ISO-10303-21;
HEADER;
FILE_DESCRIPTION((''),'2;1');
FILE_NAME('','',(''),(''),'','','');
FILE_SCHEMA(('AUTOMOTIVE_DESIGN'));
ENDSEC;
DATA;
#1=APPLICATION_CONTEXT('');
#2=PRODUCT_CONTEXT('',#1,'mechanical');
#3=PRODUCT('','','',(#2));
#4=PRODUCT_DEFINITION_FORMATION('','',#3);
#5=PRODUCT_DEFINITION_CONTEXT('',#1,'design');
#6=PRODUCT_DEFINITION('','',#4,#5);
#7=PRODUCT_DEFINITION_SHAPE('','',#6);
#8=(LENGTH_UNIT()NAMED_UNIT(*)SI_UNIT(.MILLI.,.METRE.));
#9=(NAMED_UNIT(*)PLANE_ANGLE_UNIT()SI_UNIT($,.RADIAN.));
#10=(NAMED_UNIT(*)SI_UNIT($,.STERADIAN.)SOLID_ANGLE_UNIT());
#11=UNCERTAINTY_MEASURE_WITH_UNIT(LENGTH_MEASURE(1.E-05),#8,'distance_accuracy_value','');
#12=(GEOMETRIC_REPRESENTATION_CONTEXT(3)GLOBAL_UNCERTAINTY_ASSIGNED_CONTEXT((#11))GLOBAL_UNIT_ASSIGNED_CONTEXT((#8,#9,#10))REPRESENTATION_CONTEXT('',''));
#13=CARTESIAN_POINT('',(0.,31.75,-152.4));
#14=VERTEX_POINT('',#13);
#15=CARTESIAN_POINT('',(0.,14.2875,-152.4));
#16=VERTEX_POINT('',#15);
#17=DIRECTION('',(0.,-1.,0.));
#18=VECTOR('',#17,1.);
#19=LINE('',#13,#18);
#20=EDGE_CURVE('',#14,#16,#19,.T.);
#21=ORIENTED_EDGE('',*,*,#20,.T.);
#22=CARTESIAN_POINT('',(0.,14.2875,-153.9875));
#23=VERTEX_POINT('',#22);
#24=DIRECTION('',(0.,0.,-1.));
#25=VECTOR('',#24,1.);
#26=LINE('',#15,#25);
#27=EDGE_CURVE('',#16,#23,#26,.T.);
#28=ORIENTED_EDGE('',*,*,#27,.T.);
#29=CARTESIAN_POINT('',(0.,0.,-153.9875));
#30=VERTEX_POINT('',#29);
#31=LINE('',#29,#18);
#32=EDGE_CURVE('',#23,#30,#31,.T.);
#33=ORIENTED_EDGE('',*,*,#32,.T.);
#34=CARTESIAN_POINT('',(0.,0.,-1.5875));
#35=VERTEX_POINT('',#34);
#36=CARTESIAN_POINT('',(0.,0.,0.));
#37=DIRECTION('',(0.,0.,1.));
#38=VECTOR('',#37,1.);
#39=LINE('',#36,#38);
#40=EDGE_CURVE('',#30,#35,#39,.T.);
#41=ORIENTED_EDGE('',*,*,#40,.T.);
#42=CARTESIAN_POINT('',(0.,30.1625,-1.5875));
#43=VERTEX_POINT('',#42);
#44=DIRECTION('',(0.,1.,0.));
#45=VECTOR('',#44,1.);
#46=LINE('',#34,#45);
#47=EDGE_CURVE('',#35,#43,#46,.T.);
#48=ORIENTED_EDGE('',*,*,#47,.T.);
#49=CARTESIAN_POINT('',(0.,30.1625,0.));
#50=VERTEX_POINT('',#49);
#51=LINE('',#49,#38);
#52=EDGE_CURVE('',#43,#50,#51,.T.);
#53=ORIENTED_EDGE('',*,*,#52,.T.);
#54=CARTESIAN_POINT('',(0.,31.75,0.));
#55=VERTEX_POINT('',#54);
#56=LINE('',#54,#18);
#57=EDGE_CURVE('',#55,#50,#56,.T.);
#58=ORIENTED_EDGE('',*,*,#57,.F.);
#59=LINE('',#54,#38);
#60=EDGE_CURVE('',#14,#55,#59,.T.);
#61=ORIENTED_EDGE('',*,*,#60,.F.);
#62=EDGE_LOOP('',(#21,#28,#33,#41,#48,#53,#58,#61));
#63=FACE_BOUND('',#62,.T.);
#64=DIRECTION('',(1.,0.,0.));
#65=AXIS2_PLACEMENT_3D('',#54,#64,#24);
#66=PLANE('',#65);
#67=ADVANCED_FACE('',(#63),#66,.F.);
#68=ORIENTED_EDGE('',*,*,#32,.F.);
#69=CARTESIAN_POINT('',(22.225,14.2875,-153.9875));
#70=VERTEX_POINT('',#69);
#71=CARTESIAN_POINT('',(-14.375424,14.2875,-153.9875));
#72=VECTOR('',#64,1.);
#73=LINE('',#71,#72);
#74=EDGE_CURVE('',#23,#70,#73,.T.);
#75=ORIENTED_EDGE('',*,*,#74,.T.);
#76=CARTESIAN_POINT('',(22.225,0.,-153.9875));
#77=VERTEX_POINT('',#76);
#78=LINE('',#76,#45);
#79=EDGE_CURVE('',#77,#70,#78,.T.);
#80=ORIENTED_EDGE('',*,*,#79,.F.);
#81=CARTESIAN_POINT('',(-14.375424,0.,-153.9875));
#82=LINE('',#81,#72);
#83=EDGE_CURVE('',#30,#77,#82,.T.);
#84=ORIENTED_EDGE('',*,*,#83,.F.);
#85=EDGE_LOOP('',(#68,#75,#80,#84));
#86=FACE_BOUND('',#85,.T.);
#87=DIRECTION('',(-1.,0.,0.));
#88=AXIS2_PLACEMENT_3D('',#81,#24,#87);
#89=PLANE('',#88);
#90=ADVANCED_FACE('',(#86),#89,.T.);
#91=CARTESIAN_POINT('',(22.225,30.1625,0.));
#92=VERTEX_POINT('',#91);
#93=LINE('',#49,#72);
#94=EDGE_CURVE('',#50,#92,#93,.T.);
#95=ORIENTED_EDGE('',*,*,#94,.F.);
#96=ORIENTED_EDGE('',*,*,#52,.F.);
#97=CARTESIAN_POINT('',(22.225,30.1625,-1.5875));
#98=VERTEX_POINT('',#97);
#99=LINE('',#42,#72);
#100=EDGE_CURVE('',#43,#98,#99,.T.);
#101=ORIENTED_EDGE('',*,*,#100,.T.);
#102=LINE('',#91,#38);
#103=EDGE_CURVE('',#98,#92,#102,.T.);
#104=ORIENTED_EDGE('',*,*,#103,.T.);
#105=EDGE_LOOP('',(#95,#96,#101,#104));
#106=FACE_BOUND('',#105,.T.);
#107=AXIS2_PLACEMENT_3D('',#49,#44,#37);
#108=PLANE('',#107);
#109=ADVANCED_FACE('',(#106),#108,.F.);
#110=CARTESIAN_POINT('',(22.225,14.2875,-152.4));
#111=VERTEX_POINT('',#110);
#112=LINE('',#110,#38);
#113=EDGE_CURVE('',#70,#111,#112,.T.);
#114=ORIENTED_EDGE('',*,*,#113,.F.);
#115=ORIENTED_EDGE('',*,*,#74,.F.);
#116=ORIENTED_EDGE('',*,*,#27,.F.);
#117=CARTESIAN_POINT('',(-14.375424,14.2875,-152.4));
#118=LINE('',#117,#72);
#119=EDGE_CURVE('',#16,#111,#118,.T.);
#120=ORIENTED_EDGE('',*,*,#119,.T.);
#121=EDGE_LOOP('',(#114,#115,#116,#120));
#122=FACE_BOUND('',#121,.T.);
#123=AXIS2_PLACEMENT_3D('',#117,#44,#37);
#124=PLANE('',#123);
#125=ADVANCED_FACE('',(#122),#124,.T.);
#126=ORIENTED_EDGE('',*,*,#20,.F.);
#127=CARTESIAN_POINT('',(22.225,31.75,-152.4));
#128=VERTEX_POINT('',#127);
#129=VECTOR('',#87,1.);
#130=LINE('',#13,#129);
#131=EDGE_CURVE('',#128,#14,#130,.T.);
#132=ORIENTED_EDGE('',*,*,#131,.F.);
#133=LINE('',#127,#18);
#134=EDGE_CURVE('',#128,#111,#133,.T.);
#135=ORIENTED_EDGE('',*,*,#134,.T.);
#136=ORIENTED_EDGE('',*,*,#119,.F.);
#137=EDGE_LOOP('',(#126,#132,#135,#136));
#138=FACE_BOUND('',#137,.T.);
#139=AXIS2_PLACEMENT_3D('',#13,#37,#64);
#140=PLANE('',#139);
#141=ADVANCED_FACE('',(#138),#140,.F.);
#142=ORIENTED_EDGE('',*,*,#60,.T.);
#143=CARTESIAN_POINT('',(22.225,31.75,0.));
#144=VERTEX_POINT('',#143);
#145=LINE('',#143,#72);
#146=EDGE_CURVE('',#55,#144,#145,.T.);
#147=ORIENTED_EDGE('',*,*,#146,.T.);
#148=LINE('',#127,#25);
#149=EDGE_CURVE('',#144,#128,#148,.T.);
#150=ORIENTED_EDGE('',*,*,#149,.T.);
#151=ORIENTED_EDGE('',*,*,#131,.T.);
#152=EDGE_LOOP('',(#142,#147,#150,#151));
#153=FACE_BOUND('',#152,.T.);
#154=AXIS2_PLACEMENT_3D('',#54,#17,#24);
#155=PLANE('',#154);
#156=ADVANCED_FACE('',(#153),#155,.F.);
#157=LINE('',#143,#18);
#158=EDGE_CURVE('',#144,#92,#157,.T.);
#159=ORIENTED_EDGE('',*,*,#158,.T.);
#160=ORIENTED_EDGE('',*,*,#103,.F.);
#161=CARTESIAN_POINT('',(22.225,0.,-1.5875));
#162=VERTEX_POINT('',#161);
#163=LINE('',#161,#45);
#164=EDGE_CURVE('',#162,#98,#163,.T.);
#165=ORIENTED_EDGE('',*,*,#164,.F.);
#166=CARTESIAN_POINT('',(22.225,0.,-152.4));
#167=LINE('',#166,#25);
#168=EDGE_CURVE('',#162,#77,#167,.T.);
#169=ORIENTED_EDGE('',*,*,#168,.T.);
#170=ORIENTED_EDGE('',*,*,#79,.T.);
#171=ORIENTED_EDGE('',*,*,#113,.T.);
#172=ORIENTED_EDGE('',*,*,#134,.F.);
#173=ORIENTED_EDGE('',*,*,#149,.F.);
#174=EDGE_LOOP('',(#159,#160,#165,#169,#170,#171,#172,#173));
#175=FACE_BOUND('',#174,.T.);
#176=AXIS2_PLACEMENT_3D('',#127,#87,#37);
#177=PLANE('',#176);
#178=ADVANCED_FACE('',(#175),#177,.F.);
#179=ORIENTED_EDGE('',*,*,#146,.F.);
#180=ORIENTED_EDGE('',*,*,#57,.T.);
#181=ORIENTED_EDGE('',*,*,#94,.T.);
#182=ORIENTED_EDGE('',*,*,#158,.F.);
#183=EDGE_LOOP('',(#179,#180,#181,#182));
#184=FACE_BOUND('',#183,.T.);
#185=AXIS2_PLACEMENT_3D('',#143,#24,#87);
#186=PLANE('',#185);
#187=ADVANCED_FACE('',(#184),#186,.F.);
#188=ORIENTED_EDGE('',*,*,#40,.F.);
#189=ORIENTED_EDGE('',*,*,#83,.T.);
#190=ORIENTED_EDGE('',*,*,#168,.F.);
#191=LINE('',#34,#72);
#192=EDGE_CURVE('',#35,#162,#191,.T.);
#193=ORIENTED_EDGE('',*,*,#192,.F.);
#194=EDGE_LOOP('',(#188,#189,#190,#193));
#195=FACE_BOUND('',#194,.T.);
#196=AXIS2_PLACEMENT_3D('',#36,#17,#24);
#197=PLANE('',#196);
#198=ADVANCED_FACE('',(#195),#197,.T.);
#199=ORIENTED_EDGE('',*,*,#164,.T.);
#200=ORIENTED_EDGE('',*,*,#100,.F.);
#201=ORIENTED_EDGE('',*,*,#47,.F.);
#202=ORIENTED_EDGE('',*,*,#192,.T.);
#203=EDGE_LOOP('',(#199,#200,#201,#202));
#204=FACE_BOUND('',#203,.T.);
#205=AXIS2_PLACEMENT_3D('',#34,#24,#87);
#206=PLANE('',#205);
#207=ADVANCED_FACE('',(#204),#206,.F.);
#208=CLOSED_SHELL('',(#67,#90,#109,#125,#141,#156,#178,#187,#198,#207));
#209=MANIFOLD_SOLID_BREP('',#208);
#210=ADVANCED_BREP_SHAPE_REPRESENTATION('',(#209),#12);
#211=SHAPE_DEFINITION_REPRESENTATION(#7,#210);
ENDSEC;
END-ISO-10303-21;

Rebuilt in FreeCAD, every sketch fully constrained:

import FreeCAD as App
import Part
import Sketcher
from FreeCAD import Vector
Q = App.Units.Quantity


def add_polygon(sketch, points):
    """Adds a closed chain of lines whose ends are joined by coincident constraints."""
    first, n = sketch.GeometryCount, len(points)
    for a, b in zip(points, points[1:] + points[:1]):
        sketch.addGeometry(Part.LineSegment(App.Vector(*a, 0), App.Vector(*b, 0)), False)
    for i in range(n):
        sketch.addConstraint(Sketcher.Constraint("Coincident", first + i, 2, first + (i + 1) % n, 1))

doc = App.newDocument("Part")
body = doc.addObject("PartDesign::Body", "Body")

sketch1 = doc.addObject("Sketcher::SketchObject", "Sketch")
body.addObject(sketch1)
sketch1.AttachmentSupport = (doc.XZ_Plane, [""])
sketch1.MapMode = "FlatFace"
add_polygon(sketch1, [(0, -152.4), (0, 0), (22.225, 0), (22.225, -152.4)])
sketch1.addConstraint([
    Sketcher.Constraint("Vertical", 0),
    Sketcher.Constraint("Horizontal", 1),
    Sketcher.Constraint("Vertical", 2),
    Sketcher.Constraint("Horizontal", 3),
    Sketcher.Constraint("Coincident", 0, 2, -1, 1),
    Sketcher.Constraint("DistanceY", 0, 1, 0, 2, Q("6 in")),
    Sketcher.Constraint("DistanceX", 1, 1, 1, 2, Q("0.875 in")),
])
pad1 = doc.addObject("PartDesign::Pad", "Pad")
body.addObject(pad1)
pad1.Profile = sketch1
pad1.Length = Q("1.25 in")
pad1.Reversed = True

sketch2 = doc.addObject("Sketcher::SketchObject", "Sketch001")
body.addObject(sketch2)
sketch2.AttachmentSupport = (doc.YZ_Plane, [""])
sketch2.MapMode = "FlatFace"
sketch2.AttachmentOffset = App.Placement(Vector(0, 0, 0.875 * 25.4), App.Rotation())
add_polygon(sketch2, [(30.1625, 0), (0, 0), (0, -1.5875), (30.1625, -1.5875)])
sketch2.addConstraint([
    Sketcher.Constraint("Horizontal", 0),
    Sketcher.Constraint("Vertical", 1),
    Sketcher.Constraint("Horizontal", 2),
    Sketcher.Constraint("Vertical", 3),
    Sketcher.Constraint("Coincident", 0, 2, -1, 1),
    Sketcher.Constraint("DistanceX", 0, 2, 0, 1, Q("1.1875 in")),
    Sketcher.Constraint("DistanceY", 1, 2, 1, 1, Q("0.0625 in")),
])
pocket1 = doc.addObject("PartDesign::Pocket", "Pocket")
body.addObject(pocket1)
pocket1.Profile = sketch2
pocket1.Type = "ThroughAll"

sketch3 = doc.addObject("Sketcher::SketchObject", "Sketch002")
body.addObject(sketch3)
sketch3.AttachmentSupport = (doc.YZ_Plane, [""])
sketch3.MapMode = "FlatFace"
sketch3.AttachmentOffset = App.Placement(Vector(0, 0, 0.875 * 25.4), App.Rotation())
add_polygon(sketch3, [(14.2875, -152.4), (0, -152.4), (0, -153.9875), (14.2875, -153.9875)])
sketch3.addConstraint([
    Sketcher.Constraint("Horizontal", 0),
    Sketcher.Constraint("Vertical", 1),
    Sketcher.Constraint("Horizontal", 2),
    Sketcher.Constraint("Vertical", 3),
    Sketcher.Constraint("PointOnObject", 0, 2, -2),
    Sketcher.Constraint("DistanceY", 0, 2, -1, 1, Q("6 in")),
    Sketcher.Constraint("DistanceX", 0, 2, 0, 1, Q("0.5625 in")),
    Sketcher.Constraint("DistanceY", 1, 2, 1, 1, Q("0.0625 in")),
])
pad2 = doc.addObject("PartDesign::Pad", "Pad001")
body.addObject(pad2)
pad2.Profile = sketch3
pad2.Length = Q("0.875 in")
pad2.Reversed = True

doc.recompute()
